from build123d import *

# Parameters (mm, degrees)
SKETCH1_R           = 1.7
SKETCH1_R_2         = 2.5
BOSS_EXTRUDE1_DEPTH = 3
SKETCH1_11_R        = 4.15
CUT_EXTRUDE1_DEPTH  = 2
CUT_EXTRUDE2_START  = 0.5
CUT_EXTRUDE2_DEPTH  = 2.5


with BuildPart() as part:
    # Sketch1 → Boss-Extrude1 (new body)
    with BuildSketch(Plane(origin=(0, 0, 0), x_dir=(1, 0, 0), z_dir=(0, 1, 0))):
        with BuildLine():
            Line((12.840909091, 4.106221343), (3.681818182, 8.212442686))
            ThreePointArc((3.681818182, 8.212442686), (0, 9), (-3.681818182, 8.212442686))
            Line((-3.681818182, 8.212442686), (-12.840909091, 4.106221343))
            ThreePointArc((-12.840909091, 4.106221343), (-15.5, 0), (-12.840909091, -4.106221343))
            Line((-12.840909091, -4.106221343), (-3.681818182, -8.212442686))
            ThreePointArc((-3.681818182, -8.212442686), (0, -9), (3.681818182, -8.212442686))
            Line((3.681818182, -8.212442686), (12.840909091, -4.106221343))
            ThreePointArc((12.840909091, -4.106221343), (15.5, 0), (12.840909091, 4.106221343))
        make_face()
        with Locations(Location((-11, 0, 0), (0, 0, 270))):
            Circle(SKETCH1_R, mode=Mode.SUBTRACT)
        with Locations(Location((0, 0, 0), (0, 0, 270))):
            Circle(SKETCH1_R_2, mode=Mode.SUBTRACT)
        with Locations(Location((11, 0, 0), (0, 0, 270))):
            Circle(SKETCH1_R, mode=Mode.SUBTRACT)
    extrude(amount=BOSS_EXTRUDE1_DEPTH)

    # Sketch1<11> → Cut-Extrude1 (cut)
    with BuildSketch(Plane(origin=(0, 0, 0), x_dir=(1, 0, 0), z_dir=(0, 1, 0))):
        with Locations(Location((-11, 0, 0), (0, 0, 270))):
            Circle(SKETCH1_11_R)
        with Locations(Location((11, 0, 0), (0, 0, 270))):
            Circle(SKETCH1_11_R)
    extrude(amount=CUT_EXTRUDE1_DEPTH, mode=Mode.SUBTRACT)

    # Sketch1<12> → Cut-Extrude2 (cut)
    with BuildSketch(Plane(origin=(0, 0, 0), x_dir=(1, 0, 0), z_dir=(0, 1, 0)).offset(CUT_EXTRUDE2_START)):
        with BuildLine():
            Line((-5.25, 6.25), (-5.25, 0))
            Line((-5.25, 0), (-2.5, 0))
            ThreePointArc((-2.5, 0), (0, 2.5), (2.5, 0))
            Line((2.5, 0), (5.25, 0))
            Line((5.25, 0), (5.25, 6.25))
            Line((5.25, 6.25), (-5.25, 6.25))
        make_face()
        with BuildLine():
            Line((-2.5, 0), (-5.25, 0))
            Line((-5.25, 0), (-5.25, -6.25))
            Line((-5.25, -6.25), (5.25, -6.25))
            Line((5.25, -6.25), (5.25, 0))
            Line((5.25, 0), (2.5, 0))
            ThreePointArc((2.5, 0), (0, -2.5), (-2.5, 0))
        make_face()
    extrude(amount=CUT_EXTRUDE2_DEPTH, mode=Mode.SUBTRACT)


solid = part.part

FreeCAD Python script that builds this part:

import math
import FreeCAD as App
import Part
import Sketcher
from FreeCAD import Vector
Q = App.Units.Quantity

doc = App.newDocument("Part")
body = doc.addObject("PartDesign::Body", "Body")

# Sketch on XZ plane
sketch1 = body.newObject("Sketcher::SketchObject", "Sketch")
sketch1.AttachmentSupport = (doc.getObject("XZ_Plane"), [""])
sketch1.MapMode = "FlatFace"
sketch1.addGeometry([
    Part.LineSegment(Vector(12.8, -4.1, 0), Vector(3.7, -8.2, 0)),  # 0
    Part.ArcOfCircle(Part.Circle(Vector(0, 0, 0), Vector(0, 0, 1), 9), math.radians(-114), math.radians(-66)),  # 1
    Part.LineSegment(Vector(-3.7, -8.2, 0), Vector(-12.8, -4.1, 0)),  # 2
    Part.ArcOfCircle(Part.Circle(Vector(-11, 0, 0), Vector(0, 0, 1), 4.5), math.radians(114), math.radians(246)),  # 3
    Part.LineSegment(Vector(-12.8, 4.1, 0), Vector(-3.7, 8.2, 0)),  # 4
    Part.ArcOfCircle(Part.Circle(Vector(0, 0, 0), Vector(0, 0, 1), 9), math.radians(66), math.radians(114)),  # 5
    Part.LineSegment(Vector(3.7, 8.2, 0), Vector(12.8, 4.1, 0)),  # 6
    Part.ArcOfCircle(Part.Circle(Vector(11, 0, 0), Vector(0, 0, 1), 4.5), math.radians(-66), math.radians(66)),  # 7
    Part.Circle(Vector(-11, 0, 0), Vector(0, 0, 1), 1.7),  # 8
    Part.Circle(Vector(0, 0, 0), Vector(0, 0, 1), 2.5),  # 9
    Part.Circle(Vector(11, 0, 0), Vector(0, 0, 1), 1.7),  # 10
], False)
sketch1.addConstraint([
    Sketcher.Constraint("Tangent", 0, 2, 1, 2),
    Sketcher.Constraint("Tangent", 1, 1, 2, 1),
    Sketcher.Constraint("Tangent", 2, 2, 3, 2),
    Sketcher.Constraint("Tangent", 3, 1, 4, 1),
    Sketcher.Constraint("Tangent", 4, 2, 5, 2),
    Sketcher.Constraint("Tangent", 5, 1, 6, 1),
    Sketcher.Constraint("Tangent", 6, 2, 7, 2),
    Sketcher.Constraint("Tangent", 7, 1, 0, 1),
    Sketcher.Constraint("Coincident", 1, 3, -1, 1),
    Sketcher.Constraint("Coincident", 5, 3, -1, 1),
    Sketcher.Constraint("Coincident", 9, 3, -1, 1),
    Sketcher.Constraint("Coincident", 8, 3, 3, 3),
    Sketcher.Constraint("Coincident", 10, 3, 7, 3),
    Sketcher.Constraint("Equal", 1, 5),
    Sketcher.Constraint("Equal", 3, 7),
    Sketcher.Constraint("Equal", 8, 10),
    Sketcher.Constraint("Symmetric", 3, 3, 7, 3, -1, 1),
    Sketcher.Constraint("PointOnObject", 3, 3, -1),
    Sketcher.Constraint("Diameter", 9, Q("5 mm")),
    Sketcher.Constraint("Radius", 1, Q("9 mm")),
    Sketcher.Constraint("Diameter", 8, Q("3.4 mm")),
    Sketcher.Constraint("Radius", 3, Q("4.5 mm")),
    Sketcher.Constraint("DistanceX", 3, 3, -1, 1, Q("11 mm")),
])
pad1 = body.newObject("PartDesign::Pad", "Pad")
pad1.Profile = sketch1
pad1.Length = 3
pad1.Reversed = True

# Sketch on XZ plane
sketch2 = body.newObject("Sketcher::SketchObject", "Sketch001")
sketch2.AttachmentSupport = (doc.getObject("XZ_Plane"), [""])
sketch2.MapMode = "FlatFace"
sketch2.addGeometry([
    Part.Circle(Vector(-11, 0, 0), Vector(0, 0, 1), 4.2),
    Part.Circle(Vector(11, 0, 0), Vector(0, 0, 1), 4.2),
], False)
sketch2.addConstraint([
    Sketcher.Constraint("Equal", 0, 1),
    Sketcher.Constraint("Symmetric", 0, 3, 1, 3, -1, 1),
    Sketcher.Constraint("PointOnObject", 0, 3, -1),
    Sketcher.Constraint("Diameter", 0, Q("8.3 mm")),
    Sketcher.Constraint("DistanceX", 0, 3, -1, 1, Q("11 mm")),
])
pocket1 = body.newObject("PartDesign::Pocket", "Pocket")
pocket1.Profile = sketch2
pocket1.Length = 2

# Sketch on XZ plane
sketch3 = body.newObject("Sketcher::SketchObject", "Sketch002")
sketch3.AttachmentSupport = (doc.getObject("XZ_Plane"), [""])
sketch3.MapMode = "FlatFace"
sketch3.AttachmentOffset = App.Placement(Vector(0, 0, -0.5), App.Rotation())
sketch3.addGeometry([
    Part.LineSegment(Vector(-5.2, -6.2, 0), Vector(-5.2, 6.2, 0)),  # 0
    Part.LineSegment(Vector(-5.2, 6.2, 0), Vector(5.2, 6.2, 0)),  # 1
    Part.LineSegment(Vector(5.2, 6.2, 0), Vector(5.2, -6.2, 0)),  # 2
    Part.LineSegment(Vector(5.2, -6.2, 0), Vector(-5.2, -6.2, 0)),  # 3
    Part.Circle(Vector(0, 0, 0), Vector(0, 0, 1), 2.5),  # 4
], False)
sketch3.addConstraint([
    Sketcher.Constraint("Coincident", 0, 2, 1, 1),
    Sketcher.Constraint("Coincident", 1, 2, 2, 1),
    Sketcher.Constraint("Coincident", 2, 2, 3, 1),
    Sketcher.Constraint("Coincident", 3, 2, 0, 1),
    Sketcher.Constraint("Vertical", 0),
    Sketcher.Constraint("Horizontal", 1),
    Sketcher.Constraint("Vertical", 2),
    Sketcher.Constraint("Horizontal", 3),
    Sketcher.Constraint("Coincident", 4, 3, -1, 1),
    Sketcher.Constraint("Symmetric", 0, 2, 2, 2, -1, 1),
    Sketcher.Constraint("Diameter", 4, Q("5 mm")),
    Sketcher.Constraint("DistanceX", 1, 1, 1, 2, Q("10.5 mm")),
    Sketcher.Constraint("DistanceY", 0, 1, 0, 2, Q("12.5 mm")),
])
pocket2 = body.newObject("PartDesign::Pocket", "Pocket001")
pocket2.Profile = sketch3
pocket2.Length = 2.5

doc.recompute()
